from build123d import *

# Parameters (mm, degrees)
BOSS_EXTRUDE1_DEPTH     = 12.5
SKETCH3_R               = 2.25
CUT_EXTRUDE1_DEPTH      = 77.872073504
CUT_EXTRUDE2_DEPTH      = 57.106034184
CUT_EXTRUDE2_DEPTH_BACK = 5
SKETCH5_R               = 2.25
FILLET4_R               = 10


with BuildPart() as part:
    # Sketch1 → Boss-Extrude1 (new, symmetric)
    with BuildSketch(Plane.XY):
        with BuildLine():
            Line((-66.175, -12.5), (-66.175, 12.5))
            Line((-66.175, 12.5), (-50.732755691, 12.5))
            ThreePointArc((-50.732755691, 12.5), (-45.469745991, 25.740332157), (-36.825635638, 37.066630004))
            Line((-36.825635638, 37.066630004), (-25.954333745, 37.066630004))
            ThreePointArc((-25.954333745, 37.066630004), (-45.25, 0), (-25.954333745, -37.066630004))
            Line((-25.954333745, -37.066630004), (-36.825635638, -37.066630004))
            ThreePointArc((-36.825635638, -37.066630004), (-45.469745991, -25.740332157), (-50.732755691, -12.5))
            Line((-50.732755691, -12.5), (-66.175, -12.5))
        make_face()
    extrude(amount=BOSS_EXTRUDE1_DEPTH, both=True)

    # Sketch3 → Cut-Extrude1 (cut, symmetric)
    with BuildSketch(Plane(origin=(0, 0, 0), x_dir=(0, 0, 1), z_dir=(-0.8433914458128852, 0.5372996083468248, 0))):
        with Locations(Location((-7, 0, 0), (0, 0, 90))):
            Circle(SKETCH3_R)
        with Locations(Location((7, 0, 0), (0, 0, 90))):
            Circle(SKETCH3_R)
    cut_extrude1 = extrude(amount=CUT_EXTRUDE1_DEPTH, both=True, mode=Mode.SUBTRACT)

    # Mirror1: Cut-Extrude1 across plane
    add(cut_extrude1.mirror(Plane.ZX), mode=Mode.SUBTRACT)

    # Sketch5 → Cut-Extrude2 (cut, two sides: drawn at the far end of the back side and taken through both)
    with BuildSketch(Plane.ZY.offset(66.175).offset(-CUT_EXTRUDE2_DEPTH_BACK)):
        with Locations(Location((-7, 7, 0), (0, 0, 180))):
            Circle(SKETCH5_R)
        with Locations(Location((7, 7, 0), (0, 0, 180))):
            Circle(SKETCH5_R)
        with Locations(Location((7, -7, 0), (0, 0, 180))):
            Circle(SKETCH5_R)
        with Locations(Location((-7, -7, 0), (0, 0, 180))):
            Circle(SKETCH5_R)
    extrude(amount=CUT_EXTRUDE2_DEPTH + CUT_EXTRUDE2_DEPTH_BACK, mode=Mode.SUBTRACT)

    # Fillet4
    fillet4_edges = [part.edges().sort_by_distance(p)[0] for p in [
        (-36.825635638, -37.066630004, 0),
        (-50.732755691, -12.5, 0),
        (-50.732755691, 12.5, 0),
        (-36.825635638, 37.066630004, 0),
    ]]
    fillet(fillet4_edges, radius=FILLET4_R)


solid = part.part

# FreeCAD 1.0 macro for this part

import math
import FreeCAD as App
import Part
import Sketcher


def edges_at(feature, points):
    """Names of the edges that pass closest to the given points."""
    edges = feature.Shape.Edges
    near = lambda p: min(range(len(edges)), key=lambda i: edges[i].distToShape(Part.Vertex(*p))[0])
    return sorted({f"Edge{near(p) + 1}" for p in points})

doc = App.newDocument("Part")
body = doc.addObject("PartDesign::Body", "Body")

# Sketch on XY plane
sketch1 = body.newObject("Sketcher::SketchObject", "Sketch")
sketch1.AttachmentSupport = (doc.getObject("XY_Plane"), [""])
sketch1.MapMode = "FlatFace"
sketch1.addGeometry(Part.LineSegment(App.Vector(-66, 12, 0), App.Vector(-66, -12, 0)), False)
sketch1.addGeometry(Part.LineSegment(App.Vector(-66, -12, 0), App.Vector(-51, -12, 0)), False)
sketch1.addGeometry(Part.ArcOfCircle(Part.Circle(App.Vector(0, 0, 0), App.Vector(0, 0, 1), 52), math.radians(-166), math.radians(-135)), False)
sketch1.addGeometry(Part.LineSegment(App.Vector(-37, -37, 0), App.Vector(-26, -37, 0)), False)
sketch1.addGeometry(Part.ArcOfCircle(Part.Circle(App.Vector(0, 0, 0), App.Vector(0, 0, 1), 45), math.radians(125), math.radians(235)), False)
sketch1.addGeometry(Part.LineSegment(App.Vector(-26, 37, 0), App.Vector(-37, 37, 0)), False)
sketch1.addGeometry(Part.ArcOfCircle(Part.Circle(App.Vector(0, 0, 0), App.Vector(0, 0, 1), 52), math.radians(135), math.radians(166)), False)
sketch1.addGeometry(Part.LineSegment(App.Vector(-51, 12, 0), App.Vector(-66, 12, 0)), False)
sketch1.addConstraint(Sketcher.Constraint("Coincident", 0, 2, 1, 1))
sketch1.addConstraint(Sketcher.Constraint("Coincident", 1, 2, 2, 1))
sketch1.addConstraint(Sketcher.Constraint("Coincident", 2, 2, 3, 1))
sketch1.addConstraint(Sketcher.Constraint("Coincident", 3, 2, 4, 2))
sketch1.addConstraint(Sketcher.Constraint("Coincident", 4, 1, 5, 1))
sketch1.addConstraint(Sketcher.Constraint("Coincident", 5, 2, 6, 1))
sketch1.addConstraint(Sketcher.Constraint("Coincident", 6, 2, 7, 1))
sketch1.addConstraint(Sketcher.Constraint("Coincident", 7, 2, 0, 1))
sketch1.addConstraint(Sketcher.Constraint("Vertical", 0))
sketch1.addConstraint(Sketcher.Constraint("Horizontal", 1))
sketch1.addConstraint(Sketcher.Constraint("Horizontal", 3))
sketch1.addConstraint(Sketcher.Constraint("Horizontal", 5))
sketch1.addConstraint(Sketcher.Constraint("Horizontal", 7))
sketch1.addConstraint(Sketcher.Constraint("Coincident", 2, 3, -1, 1))
sketch1.addConstraint(Sketcher.Constraint("Coincident", 4, 3, -1, 1))
sketch1.addConstraint(Sketcher.Constraint("Coincident", 6, 3, -1, 1))
sketch1.addConstraint(Sketcher.Constraint("Equal", 2, 6))
sketch1.addConstraint(Sketcher.Constraint("Vertical", 3, 2, 4, 1))
sketch1.addConstraint(Sketcher.Constraint("Vertical", 1, 2, 6, 2))
sketch1.addConstraint(Sketcher.Constraint("DistanceY", 0, 2, 0, 1, 25.0))
sketch1.addConstraint(Sketcher.Constraint("Radius", 2, 52.25))
sketch1.addConstraint(Sketcher.Constraint("Radius", 4, 45.25))
sketch1.addConstraint(Sketcher.Constraint("DistanceX", 3, 1, 3, 2, 10.871302))
sketch1.addConstraint(Sketcher.Constraint("DistanceX", 0, 2, -1, 1, 66.175))
pad1 = body.newObject("PartDesign::Pad", "Pad")
pad1.Profile = sketch1
pad1.Length = 25
pad1.Midplane = True

# Sketch on an angled plane
sketch2 = body.newObject("Sketcher::SketchObject", "Sketch001")
sketch2.Placement = App.Placement(App.Vector(0, 0, 0), App.Rotation(App.Vector(0, 0, 1), App.Vector(0.537299608, 0.843391446, 0), App.Vector(-0.843391446, 0.537299608, 0), "ZXY"))
sketch2.addGeometry(Part.Circle(App.Vector(-7, 0, 0), App.Vector(0, 0, 1), 2.2), False)
sketch2.addGeometry(Part.Circle(App.Vector(7, 0, 0), App.Vector(0, 0, 1), 2.2), False)
sketch2.addConstraint(Sketcher.Constraint("Equal", 0, 1))
sketch2.addConstraint(Sketcher.Constraint("Symmetric", 0, 3, 1, 3, -1, 1))
sketch2.addConstraint(Sketcher.Constraint("PointOnObject", 0, 3, -1))
sketch2.addConstraint(Sketcher.Constraint("Diameter", 0, 4.5))
sketch2.addConstraint(Sketcher.Constraint("DistanceX", 0, 3, -1, 1, 7.0))
pocket1 = body.newObject("PartDesign::Pocket", "Pocket")
pocket1.Profile = sketch2
pocket1.Length = 155.744147
pocket1.Midplane = True
doc.recompute()

mirrored = body.newObject("PartDesign::Mirrored", "Mirrored")
mirrored.Originals = [pocket1]
mirrored.MirrorPlane = (doc.getObject("XZ_Plane"), [""])
body.Tip = mirrored

# Sketch on YZ plane
sketch3 = body.newObject("Sketcher::SketchObject", "Sketch002")
sketch3.AttachmentSupport = (doc.getObject("YZ_Plane"), [""])
sketch3.MapMode = "FlatFace"
sketch3.AttachmentOffset = App.Placement(App.Vector(0, 0, -66.175), App.Rotation())
sketch3.addGeometry(Part.Circle(App.Vector(7, -7, 0), App.Vector(0, 0, 1), 2.2), False)
sketch3.addGeometry(Part.Circle(App.Vector(7, 7, 0), App.Vector(0, 0, 1), 2.2), False)
sketch3.addGeometry(Part.Circle(App.Vector(-7, 7, 0), App.Vector(0, 0, 1), 2.2), False)
sketch3.addGeometry(Part.Circle(App.Vector(-7, -7, 0), App.Vector(0, 0, 1), 2.2), False)
sketch3.addConstraint(Sketcher.Constraint("Equal", 0, 1))
sketch3.addConstraint(Sketcher.Constraint("Equal", 1, 2))
sketch3.addConstraint(Sketcher.Constraint("Equal", 2, 3))
sketch3.addConstraint(Sketcher.Constraint("Symmetric", 0, 3, 2, 3, -1, 1))
sketch3.addConstraint(Sketcher.Constraint("Symmetric", 1, 3, 3, 3, -1, 1))
sketch3.addConstraint(Sketcher.Constraint("Symmetric", 1, 3, 2, 3, -2))
sketch3.addConstraint(Sketcher.Constraint("Diameter", 0, 4.5))
sketch3.addConstraint(Sketcher.Constraint("DistanceX", -1, 1, 0, 3, 7.0))
sketch3.addConstraint(Sketcher.Constraint("DistanceY", 0, 3, -1, 1, 7.0))
pocket2 = body.newObject("PartDesign::Pocket", "Pocket001")
pocket2.Profile = sketch3
pocket2.Type = "TwoLengths"
pocket2.Length = 57.106034
pocket2.Length2 = 5
doc.recompute()

fillet = body.newObject("PartDesign::Fillet", "Fillet")
fillet.Base = (pocket2, edges_at(pocket2, [
    (-36.826, -37.067, 0),
    (-50.733, -12.5, 0),
    (-50.733, 12.5, 0),
    (-36.826, 37.067, 0),
]))
fillet.Radius = 10

doc.recompute()
